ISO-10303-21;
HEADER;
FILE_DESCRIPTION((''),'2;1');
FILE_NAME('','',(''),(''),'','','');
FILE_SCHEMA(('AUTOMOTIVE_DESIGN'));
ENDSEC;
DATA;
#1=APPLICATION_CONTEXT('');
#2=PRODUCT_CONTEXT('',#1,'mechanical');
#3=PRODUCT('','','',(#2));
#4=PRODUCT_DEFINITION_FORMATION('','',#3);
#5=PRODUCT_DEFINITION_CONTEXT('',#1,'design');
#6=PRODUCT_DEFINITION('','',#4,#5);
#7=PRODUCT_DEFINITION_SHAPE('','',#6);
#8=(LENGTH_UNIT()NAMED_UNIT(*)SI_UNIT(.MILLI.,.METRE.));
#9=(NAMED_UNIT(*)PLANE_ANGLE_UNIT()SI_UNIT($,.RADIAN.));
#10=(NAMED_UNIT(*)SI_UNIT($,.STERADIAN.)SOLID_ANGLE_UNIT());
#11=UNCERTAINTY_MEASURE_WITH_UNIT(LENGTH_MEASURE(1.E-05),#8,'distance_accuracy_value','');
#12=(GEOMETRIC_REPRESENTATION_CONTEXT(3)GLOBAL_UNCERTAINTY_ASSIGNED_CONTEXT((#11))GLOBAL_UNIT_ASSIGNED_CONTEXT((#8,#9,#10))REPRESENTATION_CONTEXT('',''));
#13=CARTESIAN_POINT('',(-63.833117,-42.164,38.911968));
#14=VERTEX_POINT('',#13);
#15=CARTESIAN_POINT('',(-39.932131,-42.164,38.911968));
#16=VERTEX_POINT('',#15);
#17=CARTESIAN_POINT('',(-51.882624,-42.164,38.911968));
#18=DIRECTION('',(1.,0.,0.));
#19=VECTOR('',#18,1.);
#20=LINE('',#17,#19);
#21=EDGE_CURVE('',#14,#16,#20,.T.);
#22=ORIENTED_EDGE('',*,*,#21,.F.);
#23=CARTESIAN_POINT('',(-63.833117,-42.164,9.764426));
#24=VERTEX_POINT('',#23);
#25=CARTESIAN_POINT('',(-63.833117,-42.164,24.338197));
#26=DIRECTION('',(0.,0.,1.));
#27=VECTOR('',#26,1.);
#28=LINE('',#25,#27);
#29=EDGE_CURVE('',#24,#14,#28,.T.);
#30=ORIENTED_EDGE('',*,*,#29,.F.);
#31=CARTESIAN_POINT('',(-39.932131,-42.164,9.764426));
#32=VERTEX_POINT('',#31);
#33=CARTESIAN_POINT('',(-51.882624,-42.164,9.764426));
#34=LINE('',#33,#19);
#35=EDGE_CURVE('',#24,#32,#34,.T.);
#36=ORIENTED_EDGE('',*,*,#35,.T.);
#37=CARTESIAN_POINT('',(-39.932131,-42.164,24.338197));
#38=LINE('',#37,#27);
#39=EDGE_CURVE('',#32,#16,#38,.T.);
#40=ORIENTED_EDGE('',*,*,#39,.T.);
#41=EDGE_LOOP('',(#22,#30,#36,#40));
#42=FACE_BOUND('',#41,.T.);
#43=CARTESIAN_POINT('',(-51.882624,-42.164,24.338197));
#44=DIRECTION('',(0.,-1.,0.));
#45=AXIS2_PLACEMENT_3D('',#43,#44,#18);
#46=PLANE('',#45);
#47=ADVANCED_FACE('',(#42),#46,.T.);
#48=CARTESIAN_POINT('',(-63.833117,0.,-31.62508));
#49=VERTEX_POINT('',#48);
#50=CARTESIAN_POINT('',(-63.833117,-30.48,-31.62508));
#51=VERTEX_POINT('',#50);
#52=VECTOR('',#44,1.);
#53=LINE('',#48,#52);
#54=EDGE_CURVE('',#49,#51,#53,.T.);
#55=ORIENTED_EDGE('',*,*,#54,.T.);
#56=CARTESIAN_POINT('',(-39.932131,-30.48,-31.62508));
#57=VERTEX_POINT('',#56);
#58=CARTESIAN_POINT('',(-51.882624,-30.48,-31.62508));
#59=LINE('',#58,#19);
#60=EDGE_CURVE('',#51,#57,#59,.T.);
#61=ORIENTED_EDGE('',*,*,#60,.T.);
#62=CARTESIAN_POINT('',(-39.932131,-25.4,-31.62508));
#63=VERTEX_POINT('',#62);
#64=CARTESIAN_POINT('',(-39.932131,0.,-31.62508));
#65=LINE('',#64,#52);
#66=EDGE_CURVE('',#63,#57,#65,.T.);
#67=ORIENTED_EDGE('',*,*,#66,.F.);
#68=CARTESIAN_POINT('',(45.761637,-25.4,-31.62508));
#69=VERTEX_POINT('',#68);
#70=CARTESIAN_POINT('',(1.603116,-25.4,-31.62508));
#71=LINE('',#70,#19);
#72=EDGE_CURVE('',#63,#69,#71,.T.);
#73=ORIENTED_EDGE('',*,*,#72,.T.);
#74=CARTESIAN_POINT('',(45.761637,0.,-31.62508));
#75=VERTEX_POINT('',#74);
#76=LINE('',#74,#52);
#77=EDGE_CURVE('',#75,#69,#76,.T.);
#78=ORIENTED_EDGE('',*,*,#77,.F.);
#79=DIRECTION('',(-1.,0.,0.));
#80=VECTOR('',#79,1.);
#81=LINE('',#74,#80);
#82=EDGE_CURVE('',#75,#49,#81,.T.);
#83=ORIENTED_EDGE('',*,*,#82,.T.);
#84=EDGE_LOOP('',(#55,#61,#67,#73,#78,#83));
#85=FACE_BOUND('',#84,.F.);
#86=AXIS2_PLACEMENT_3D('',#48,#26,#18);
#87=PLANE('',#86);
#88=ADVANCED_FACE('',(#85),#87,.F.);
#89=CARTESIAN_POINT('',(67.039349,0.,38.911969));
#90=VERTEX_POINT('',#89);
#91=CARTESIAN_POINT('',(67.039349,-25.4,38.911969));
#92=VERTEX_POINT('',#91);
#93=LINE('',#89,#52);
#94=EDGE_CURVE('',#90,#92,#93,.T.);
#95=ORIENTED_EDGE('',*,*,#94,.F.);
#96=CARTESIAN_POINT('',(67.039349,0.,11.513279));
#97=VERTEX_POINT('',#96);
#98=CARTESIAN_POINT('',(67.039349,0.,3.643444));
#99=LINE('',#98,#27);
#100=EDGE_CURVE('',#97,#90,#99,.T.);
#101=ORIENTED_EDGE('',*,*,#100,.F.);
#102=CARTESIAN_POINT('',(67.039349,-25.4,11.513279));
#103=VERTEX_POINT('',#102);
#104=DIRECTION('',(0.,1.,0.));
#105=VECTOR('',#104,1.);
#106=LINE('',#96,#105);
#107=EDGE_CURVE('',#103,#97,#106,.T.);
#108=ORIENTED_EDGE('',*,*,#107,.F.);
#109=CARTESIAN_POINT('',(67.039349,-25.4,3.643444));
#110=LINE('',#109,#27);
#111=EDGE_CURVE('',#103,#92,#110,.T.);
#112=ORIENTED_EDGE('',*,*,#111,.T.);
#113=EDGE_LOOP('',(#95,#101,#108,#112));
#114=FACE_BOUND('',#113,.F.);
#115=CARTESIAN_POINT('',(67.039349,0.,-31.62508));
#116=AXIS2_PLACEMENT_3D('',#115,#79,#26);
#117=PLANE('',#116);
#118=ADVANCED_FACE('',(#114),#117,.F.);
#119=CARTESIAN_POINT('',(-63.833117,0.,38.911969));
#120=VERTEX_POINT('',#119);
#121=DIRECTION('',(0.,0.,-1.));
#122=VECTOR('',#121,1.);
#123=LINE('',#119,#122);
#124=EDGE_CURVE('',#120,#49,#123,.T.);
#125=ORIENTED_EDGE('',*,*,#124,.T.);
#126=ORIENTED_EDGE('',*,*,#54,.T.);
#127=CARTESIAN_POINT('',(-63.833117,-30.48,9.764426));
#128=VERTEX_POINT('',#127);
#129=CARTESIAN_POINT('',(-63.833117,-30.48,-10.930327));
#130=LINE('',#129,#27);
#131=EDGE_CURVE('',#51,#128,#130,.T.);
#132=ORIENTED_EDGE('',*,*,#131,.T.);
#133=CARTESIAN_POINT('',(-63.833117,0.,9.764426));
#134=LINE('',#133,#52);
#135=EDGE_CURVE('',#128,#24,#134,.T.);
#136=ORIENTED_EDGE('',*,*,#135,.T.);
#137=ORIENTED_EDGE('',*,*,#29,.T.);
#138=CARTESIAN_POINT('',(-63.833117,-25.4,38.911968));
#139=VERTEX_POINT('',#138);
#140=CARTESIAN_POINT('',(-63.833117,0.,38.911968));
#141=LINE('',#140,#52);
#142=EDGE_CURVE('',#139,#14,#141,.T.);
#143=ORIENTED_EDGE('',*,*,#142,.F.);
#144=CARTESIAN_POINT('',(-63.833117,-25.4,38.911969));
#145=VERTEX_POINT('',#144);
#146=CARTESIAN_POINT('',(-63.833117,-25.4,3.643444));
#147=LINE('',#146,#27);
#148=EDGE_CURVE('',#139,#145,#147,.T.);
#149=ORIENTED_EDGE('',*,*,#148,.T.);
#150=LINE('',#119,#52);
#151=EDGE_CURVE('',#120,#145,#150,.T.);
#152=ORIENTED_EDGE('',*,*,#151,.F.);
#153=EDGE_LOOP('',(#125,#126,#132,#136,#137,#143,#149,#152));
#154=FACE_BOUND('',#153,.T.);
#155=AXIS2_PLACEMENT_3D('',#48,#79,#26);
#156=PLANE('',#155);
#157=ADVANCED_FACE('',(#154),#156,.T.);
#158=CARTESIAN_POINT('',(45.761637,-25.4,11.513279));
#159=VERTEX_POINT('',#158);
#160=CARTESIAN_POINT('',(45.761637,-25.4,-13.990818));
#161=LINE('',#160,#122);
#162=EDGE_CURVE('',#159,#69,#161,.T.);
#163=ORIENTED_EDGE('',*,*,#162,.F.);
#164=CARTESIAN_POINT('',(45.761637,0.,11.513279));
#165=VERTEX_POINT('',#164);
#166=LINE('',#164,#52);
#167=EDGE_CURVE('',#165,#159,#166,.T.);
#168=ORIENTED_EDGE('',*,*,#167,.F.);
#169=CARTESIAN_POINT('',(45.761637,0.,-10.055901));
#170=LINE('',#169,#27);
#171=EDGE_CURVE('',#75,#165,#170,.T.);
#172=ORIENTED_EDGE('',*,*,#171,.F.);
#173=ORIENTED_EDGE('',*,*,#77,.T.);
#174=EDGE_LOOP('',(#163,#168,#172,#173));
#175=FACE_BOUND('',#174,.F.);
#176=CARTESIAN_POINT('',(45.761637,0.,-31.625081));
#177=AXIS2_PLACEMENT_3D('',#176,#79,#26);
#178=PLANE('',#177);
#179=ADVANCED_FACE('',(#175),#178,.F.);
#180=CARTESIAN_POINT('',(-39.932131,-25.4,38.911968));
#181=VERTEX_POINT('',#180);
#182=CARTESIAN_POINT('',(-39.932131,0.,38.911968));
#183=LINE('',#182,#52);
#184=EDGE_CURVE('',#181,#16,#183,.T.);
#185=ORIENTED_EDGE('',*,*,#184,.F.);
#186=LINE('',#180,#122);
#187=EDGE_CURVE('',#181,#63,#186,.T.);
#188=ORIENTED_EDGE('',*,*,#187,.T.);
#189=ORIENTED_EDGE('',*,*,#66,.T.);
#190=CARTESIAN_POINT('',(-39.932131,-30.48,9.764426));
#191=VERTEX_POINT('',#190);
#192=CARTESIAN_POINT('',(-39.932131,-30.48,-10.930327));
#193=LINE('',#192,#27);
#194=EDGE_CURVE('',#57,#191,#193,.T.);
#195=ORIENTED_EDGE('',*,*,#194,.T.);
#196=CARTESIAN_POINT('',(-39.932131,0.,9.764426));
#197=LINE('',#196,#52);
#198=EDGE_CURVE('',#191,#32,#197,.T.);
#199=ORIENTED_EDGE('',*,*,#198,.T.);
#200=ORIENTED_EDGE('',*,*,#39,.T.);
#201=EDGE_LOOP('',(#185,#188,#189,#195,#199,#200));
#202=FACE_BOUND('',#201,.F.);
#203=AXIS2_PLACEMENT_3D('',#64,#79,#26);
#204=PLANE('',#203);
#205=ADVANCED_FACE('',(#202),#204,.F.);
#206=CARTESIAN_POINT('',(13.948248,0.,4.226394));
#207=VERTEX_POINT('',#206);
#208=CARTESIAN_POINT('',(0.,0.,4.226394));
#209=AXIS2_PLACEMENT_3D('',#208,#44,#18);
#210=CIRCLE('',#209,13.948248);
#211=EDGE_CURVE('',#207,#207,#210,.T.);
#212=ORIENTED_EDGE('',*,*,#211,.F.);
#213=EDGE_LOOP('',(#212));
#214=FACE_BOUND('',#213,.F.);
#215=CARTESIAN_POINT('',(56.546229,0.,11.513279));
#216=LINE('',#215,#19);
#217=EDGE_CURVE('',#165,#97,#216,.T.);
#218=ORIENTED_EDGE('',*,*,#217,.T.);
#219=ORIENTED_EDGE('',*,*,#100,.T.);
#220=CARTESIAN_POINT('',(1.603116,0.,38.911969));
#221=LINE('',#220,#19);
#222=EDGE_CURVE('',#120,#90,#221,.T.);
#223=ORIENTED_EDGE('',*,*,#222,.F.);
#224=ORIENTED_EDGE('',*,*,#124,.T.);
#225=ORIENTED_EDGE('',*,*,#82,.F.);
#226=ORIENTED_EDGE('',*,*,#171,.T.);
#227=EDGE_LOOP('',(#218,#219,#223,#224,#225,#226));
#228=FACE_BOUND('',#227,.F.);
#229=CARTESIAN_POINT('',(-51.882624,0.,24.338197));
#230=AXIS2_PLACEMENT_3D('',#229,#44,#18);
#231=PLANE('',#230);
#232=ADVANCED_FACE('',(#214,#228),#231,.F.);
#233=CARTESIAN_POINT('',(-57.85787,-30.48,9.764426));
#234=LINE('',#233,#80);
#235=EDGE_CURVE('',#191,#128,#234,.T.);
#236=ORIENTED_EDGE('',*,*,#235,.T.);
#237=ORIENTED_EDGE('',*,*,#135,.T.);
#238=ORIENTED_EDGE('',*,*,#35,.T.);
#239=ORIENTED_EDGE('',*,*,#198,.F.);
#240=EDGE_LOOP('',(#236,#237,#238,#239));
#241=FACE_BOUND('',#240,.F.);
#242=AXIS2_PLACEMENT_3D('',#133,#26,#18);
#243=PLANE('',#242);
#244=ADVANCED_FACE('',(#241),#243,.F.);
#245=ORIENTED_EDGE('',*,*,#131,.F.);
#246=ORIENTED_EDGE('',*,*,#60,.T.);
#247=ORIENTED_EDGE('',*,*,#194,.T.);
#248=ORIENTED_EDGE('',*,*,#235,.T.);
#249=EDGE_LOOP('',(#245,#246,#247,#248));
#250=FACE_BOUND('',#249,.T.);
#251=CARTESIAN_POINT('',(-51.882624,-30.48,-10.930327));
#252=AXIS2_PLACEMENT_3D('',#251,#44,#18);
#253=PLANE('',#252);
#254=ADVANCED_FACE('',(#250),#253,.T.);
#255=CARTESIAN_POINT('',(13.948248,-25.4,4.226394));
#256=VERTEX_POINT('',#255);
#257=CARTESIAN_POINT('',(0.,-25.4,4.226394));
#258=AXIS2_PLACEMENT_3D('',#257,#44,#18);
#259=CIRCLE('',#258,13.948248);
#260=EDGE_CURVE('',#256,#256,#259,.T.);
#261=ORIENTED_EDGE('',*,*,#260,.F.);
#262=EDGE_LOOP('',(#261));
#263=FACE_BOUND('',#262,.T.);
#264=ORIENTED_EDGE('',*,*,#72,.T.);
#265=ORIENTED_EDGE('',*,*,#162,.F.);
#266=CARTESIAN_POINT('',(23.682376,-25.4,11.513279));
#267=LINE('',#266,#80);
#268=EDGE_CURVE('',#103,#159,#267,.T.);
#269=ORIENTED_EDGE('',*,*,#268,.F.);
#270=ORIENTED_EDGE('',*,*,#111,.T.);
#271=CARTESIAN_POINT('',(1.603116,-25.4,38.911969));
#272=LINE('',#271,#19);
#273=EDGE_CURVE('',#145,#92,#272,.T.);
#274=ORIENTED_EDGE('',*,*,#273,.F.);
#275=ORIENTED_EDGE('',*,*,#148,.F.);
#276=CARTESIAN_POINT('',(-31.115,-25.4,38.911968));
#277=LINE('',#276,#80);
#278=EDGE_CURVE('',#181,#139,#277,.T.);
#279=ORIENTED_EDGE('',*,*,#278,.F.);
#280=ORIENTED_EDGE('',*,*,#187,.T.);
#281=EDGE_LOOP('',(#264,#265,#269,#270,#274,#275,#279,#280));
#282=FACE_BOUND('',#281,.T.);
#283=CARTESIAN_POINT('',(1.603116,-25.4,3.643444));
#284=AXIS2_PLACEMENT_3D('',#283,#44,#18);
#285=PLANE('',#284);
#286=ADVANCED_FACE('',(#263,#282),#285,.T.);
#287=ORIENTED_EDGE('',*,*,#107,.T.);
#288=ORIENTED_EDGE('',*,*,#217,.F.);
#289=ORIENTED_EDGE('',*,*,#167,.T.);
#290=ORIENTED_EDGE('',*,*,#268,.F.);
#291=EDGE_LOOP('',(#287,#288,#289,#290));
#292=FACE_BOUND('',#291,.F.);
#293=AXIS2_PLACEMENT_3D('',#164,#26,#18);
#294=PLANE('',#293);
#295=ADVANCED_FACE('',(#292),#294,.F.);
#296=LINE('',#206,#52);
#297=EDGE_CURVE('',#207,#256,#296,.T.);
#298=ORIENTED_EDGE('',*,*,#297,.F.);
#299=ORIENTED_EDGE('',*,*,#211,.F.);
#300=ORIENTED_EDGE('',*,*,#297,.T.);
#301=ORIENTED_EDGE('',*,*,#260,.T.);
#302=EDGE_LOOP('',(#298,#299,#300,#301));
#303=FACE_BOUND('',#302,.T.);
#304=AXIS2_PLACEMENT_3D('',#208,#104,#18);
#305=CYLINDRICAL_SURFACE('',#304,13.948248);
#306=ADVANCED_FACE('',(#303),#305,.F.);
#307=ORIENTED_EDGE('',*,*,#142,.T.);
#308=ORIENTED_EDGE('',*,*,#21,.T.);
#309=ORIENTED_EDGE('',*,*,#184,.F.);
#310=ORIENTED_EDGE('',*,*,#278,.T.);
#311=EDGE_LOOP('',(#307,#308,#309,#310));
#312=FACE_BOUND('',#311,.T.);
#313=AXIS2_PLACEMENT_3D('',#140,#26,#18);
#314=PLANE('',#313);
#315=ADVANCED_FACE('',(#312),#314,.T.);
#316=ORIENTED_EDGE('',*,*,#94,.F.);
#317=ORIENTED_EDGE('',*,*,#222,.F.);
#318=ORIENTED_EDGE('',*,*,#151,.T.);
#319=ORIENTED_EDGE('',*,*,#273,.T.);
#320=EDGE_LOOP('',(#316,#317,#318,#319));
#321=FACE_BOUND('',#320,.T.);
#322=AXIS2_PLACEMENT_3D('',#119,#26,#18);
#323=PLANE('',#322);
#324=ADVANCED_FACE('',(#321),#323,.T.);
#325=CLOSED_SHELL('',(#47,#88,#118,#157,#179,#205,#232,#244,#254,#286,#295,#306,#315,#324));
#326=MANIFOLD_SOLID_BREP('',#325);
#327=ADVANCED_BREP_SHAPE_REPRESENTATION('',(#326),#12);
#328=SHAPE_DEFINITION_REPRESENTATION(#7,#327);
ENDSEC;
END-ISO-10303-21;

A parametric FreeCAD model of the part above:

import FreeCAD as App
import Part
import Sketcher

V = App.Vector
Q = App.Units.Quantity


def add_polygon(sketch, points):
    """Adds a closed chain of lines whose ends are joined by coincident constraints."""
    first, n = sketch.GeometryCount, len(points)
    for a, b in zip(points, points[1:] + points[:1]):
        sketch.addGeometry(Part.LineSegment(App.Vector(*a, 0), App.Vector(*b, 0)), False)
    for i in range(n):
        sketch.addConstraint(Sketcher.Constraint("Coincident", first + i, 2, first + (i + 1) % n, 1))

doc = App.newDocument("Part")
body = doc.addObject("PartDesign::Body", "Body")

# Sketch on XZ plane
sketch1 = doc.addObject("Sketcher::SketchObject", "Sketch")
body.addObject(sketch1)
sketch1.AttachmentSupport = (doc.XZ_Plane, [""])
sketch1.MapMode = "FlatFace"
add_polygon(sketch1, [(-64, 39), (-64, -32), (67, -32), (67, 39)])  # lines 0-3
sketch1.addGeometry(Part.Circle(V(0, 4, 0), V(0, 0, 1), 14), False)  # 4
sketch1.addConstraint([
    Sketcher.Constraint("Vertical", 0),
    Sketcher.Constraint("Horizontal", 1),
    Sketcher.Constraint("Vertical", 2),
    Sketcher.Constraint("Horizontal", 3),
    Sketcher.Constraint("PointOnObject", 4, 3, -2),
    Sketcher.Constraint("Diameter", 4, Q("27.896496 mm")),
    Sketcher.Constraint("DistanceY", 0, 2, 0, 1, Q("70.537049 mm")),
    Sketcher.Constraint("DistanceX", 1, 1, 1, 2, Q("130.872465 mm")),
    Sketcher.Constraint("DistanceY", 0, 2, -1, 1, Q("31.62508 mm")),
    Sketcher.Constraint("DistanceX", -1, 1, 1, 2, Q("67.039349 mm")),
    Sketcher.Constraint("DistanceY", -1, 1, 4, 3, Q("4.226394 mm")),
])
pad1 = doc.addObject("PartDesign::Pad", "Pad")
body.addObject(pad1)
pad1.Profile = sketch1
pad1.Length = Q("1 in")

# Sketch on XZ plane
sketch2 = doc.addObject("Sketcher::SketchObject", "Sketch001")
body.addObject(sketch2)
sketch2.AttachmentSupport = (doc.XZ_Plane, [""])
sketch2.MapMode = "FlatFace"
add_polygon(sketch2, [(46, 12), (46, -32), (67, -32), (67, 12)])  # lines 0-3
sketch2.addConstraint([
    Sketcher.Constraint("Vertical", 0),
    Sketcher.Constraint("Horizontal", 1),
    Sketcher.Constraint("Vertical", 2),
    Sketcher.Constraint("Horizontal", 3),
    Sketcher.Constraint("DistanceY", 0, 2, 0, 1, Q("43.13836 mm")),
    Sketcher.Constraint("DistanceX", 1, 1, 1, 2, Q("21.569185 mm")),
    Sketcher.Constraint("DistanceY", 0, 2, -1, 1, Q("31.625081 mm")),
    Sketcher.Constraint("DistanceX", -1, 1, 1, 2, Q("67.330821 mm")),
])
pocket1 = doc.addObject("PartDesign::Pocket", "Pocket")
body.addObject(pocket1)
pocket1.Profile = sketch2
pocket1.Length = Q("1.59 in")
pocket1.Reversed = True

# Sketch on XZ plane
sketch3 = doc.addObject("Sketcher::SketchObject", "Sketch002")
body.addObject(sketch3)
sketch3.AttachmentSupport = (doc.XZ_Plane, [""])
sketch3.MapMode = "FlatFace"
add_polygon(sketch3, [(-64, 10), (-64, -32), (-40, -32), (-40, 10)])  # lines 0-3
sketch3.addConstraint([
    Sketcher.Constraint("Vertical", 0),
    Sketcher.Constraint("Horizontal", 1),
    Sketcher.Constraint("Vertical", 2),
    Sketcher.Constraint("Horizontal", 3),
    Sketcher.Constraint("DistanceX", 1, 1, 1, 2, Q("23.900985 mm")),
    Sketcher.Constraint("DistanceY", 0, 2, 0, 1, Q("41.389507 mm")),
    Sketcher.Constraint("DistanceY", 0, 2, -1, 1, Q("31.62508 mm")),
    Sketcher.Constraint("DistanceX", 1, 2, -1, 1, Q("39.932131 mm")),
])
pad2 = doc.addObject("PartDesign::Pad", "Pad001")
body.addObject(pad2)
pad2.Profile = sketch3
pad2.Length = Q("1.2 in")

# Sketch on XZ plane
sketch4 = doc.addObject("Sketcher::SketchObject", "Sketch003")
body.addObject(sketch4)
sketch4.AttachmentSupport = (doc.XZ_Plane, [""])
sketch4.MapMode = "FlatFace"
add_polygon(sketch4, [(-64, 39), (-64, 10), (-40, 10), (-40, 39)])  # lines 0-3
sketch4.addConstraint([
    Sketcher.Constraint("Vertical", 0),
    Sketcher.Constraint("Horizontal", 1),
    Sketcher.Constraint("Vertical", 2),
    Sketcher.Constraint("Horizontal", 3),
    Sketcher.Constraint("DistanceX", 1, 1, 1, 2, Q("23.900985 mm")),
    Sketcher.Constraint("DistanceY", 0, 2, 0, 1, Q("29.147542 mm")),
    Sketcher.Constraint("DistanceX", 1, 2, -1, 1, Q("39.932131 mm")),
    Sketcher.Constraint("DistanceY", -1, 1, 2, 2, Q("38.911968 mm")),
])
pad3 = doc.addObject("PartDesign::Pad", "Pad002")
body.addObject(pad3)
pad3.Profile = sketch4
pad3.Length = Q("1.66 in")

doc.recompute()
